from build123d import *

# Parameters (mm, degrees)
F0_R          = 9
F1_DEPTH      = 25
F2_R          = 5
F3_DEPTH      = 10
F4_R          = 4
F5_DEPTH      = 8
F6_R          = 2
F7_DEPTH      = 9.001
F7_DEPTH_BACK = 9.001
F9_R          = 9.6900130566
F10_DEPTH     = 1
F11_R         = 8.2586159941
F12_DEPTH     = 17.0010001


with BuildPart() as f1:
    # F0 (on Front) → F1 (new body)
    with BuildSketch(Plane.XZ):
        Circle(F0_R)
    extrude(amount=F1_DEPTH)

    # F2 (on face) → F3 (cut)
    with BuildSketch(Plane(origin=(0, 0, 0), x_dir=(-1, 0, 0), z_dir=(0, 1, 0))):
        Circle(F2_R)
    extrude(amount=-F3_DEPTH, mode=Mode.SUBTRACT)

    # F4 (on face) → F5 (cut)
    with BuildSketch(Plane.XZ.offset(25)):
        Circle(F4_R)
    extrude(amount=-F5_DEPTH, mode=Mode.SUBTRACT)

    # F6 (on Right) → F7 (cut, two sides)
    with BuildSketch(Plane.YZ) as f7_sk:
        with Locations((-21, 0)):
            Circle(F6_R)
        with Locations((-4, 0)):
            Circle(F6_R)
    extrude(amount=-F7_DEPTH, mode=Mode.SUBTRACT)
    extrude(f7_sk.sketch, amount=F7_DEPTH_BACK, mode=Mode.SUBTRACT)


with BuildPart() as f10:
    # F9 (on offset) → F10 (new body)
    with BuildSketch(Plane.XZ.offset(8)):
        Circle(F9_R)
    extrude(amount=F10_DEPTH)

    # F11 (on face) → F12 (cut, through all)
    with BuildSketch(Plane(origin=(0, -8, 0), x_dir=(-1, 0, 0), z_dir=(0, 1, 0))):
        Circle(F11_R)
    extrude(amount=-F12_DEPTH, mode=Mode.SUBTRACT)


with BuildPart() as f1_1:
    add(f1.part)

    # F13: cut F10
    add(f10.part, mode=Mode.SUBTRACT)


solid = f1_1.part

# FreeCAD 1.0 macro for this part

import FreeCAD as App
import Part
import Sketcher

V = App.Vector

doc = App.newDocument("Part")
body = doc.addObject("PartDesign::Body", "Body")

# Sketch on XZ plane
sketch1 = body.newObject("Sketcher::SketchObject", "Sketch")
sketch1.AttachmentSupport = (doc.getObject("XZ_Plane"), [""])
sketch1.MapMode = "FlatFace"
sketch1.addGeometry(Part.Circle(V(0, 0, 0), V(0, 0, 1), 9), False)
sketch1.addConstraint(Sketcher.Constraint("Coincident", 0, 3, -1, 1))
sketch1.addConstraint(Sketcher.Constraint("Diameter", 0, 18.0))
pad1 = body.newObject("PartDesign::Pad", "Pad")
pad1.Profile = sketch1
pad1.Length = 25

# Sketch on XZ plane
sketch2 = body.newObject("Sketcher::SketchObject", "Sketch001")
sketch2.AttachmentSupport = (doc.getObject("XZ_Plane"), [""])
sketch2.MapMode = "FlatFace"
sketch2.addGeometry(Part.Circle(V(0, 0, 0), V(0, 0, 1), 5), False)
sketch2.addConstraint(Sketcher.Constraint("Coincident", 0, 3, -1, 1))
sketch2.addConstraint(Sketcher.Constraint("Diameter", 0, 10.0))
pocket1 = body.newObject("PartDesign::Pocket", "Pocket")
pocket1.Profile = sketch2
pocket1.Length = 10
pocket1.Reversed = True

# Sketch on XZ plane
sketch3 = body.newObject("Sketcher::SketchObject", "Sketch002")
sketch3.AttachmentSupport = (doc.getObject("XZ_Plane"), [""])
sketch3.MapMode = "FlatFace"
sketch3.AttachmentOffset = App.Placement(V(0, 0, 25), App.Rotation())
sketch3.addGeometry(Part.Circle(V(0, 0, 0), V(0, 0, 1), 4), False)
sketch3.addConstraint(Sketcher.Constraint("Coincident", 0, 3, -1, 1))
sketch3.addConstraint(Sketcher.Constraint("Diameter", 0, 8.0))
pocket2 = body.newObject("PartDesign::Pocket", "Pocket001")
pocket2.Profile = sketch3
pocket2.Length = 8

# Sketch on YZ plane
sketch4 = body.newObject("Sketcher::SketchObject", "Sketch003")
sketch4.AttachmentSupport = (doc.getObject("YZ_Plane"), [""])
sketch4.MapMode = "FlatFace"
sketch4.addGeometry(Part.Circle(V(-21, 0, 0), V(0, 0, 1), 2), False)
sketch4.addGeometry(Part.Circle(V(-4, 0, 0), V(0, 0, 1), 2), False)
sketch4.addConstraint(Sketcher.Constraint("Equal", 0, 1))
sketch4.addConstraint(Sketcher.Constraint("PointOnObject", 0, 3, -1))
sketch4.addConstraint(Sketcher.Constraint("PointOnObject", 1, 3, -1))
sketch4.addConstraint(Sketcher.Constraint("Diameter", 0, 4.0))
sketch4.addConstraint(Sketcher.Constraint("DistanceX", 0, 3, -1, 1, 21.0))
sketch4.addConstraint(Sketcher.Constraint("DistanceX", 1, 3, -1, 1, 4.0))
pocket3 = body.newObject("PartDesign::Pocket", "Pocket002")
pocket3.Profile = sketch4
pocket3.Type = "ThroughAll"
pocket3.Midplane = True
body2 = doc.addObject("PartDesign::Body", "Body001")

# Sketch on XZ plane
sketch5 = body2.newObject("Sketcher::SketchObject", "Sketch004")
sketch5.AttachmentSupport = (doc.getObject("XZ_Plane001"), [""])
sketch5.MapMode = "FlatFace"
sketch5.AttachmentOffset = App.Placement(V(0, 0, 8), App.Rotation())
sketch5.addGeometry(Part.Circle(V(0, 0, 0), V(0, 0, 1), 10), False)
sketch5.addConstraint(Sketcher.Constraint("Coincident", 0, 3, -1, 1))
sketch5.addConstraint(Sketcher.Constraint("Diameter", 0, 19.380026))
pad2 = body2.newObject("PartDesign::Pad", "Pad001")
pad2.Profile = sketch5
pad2.Length = 1

# Sketch on XZ plane
sketch6 = body2.newObject("Sketcher::SketchObject", "Sketch005")
sketch6.AttachmentSupport = (doc.getObject("XZ_Plane001"), [""])
sketch6.MapMode = "FlatFace"
sketch6.AttachmentOffset = App.Placement(V(0, 0, 8), App.Rotation())
sketch6.addGeometry(Part.Circle(V(0, 0, 0), V(0, 0, 1), 8), False)
sketch6.addConstraint(Sketcher.Constraint("Coincident", 0, 3, -1, 1))
sketch6.addConstraint(Sketcher.Constraint("Diameter", 0, 16.517232))
pocket4 = body2.newObject("PartDesign::Pocket", "Pocket003")
pocket4.Profile = sketch6
pocket4.Type = "ThroughAll"
pocket4.Reversed = True
doc.recompute()

boolean = body.newObject("PartDesign::Boolean", "Boolean")
boolean.Type = "Cut"
boolean.addObjects([body2])

doc.recompute()
